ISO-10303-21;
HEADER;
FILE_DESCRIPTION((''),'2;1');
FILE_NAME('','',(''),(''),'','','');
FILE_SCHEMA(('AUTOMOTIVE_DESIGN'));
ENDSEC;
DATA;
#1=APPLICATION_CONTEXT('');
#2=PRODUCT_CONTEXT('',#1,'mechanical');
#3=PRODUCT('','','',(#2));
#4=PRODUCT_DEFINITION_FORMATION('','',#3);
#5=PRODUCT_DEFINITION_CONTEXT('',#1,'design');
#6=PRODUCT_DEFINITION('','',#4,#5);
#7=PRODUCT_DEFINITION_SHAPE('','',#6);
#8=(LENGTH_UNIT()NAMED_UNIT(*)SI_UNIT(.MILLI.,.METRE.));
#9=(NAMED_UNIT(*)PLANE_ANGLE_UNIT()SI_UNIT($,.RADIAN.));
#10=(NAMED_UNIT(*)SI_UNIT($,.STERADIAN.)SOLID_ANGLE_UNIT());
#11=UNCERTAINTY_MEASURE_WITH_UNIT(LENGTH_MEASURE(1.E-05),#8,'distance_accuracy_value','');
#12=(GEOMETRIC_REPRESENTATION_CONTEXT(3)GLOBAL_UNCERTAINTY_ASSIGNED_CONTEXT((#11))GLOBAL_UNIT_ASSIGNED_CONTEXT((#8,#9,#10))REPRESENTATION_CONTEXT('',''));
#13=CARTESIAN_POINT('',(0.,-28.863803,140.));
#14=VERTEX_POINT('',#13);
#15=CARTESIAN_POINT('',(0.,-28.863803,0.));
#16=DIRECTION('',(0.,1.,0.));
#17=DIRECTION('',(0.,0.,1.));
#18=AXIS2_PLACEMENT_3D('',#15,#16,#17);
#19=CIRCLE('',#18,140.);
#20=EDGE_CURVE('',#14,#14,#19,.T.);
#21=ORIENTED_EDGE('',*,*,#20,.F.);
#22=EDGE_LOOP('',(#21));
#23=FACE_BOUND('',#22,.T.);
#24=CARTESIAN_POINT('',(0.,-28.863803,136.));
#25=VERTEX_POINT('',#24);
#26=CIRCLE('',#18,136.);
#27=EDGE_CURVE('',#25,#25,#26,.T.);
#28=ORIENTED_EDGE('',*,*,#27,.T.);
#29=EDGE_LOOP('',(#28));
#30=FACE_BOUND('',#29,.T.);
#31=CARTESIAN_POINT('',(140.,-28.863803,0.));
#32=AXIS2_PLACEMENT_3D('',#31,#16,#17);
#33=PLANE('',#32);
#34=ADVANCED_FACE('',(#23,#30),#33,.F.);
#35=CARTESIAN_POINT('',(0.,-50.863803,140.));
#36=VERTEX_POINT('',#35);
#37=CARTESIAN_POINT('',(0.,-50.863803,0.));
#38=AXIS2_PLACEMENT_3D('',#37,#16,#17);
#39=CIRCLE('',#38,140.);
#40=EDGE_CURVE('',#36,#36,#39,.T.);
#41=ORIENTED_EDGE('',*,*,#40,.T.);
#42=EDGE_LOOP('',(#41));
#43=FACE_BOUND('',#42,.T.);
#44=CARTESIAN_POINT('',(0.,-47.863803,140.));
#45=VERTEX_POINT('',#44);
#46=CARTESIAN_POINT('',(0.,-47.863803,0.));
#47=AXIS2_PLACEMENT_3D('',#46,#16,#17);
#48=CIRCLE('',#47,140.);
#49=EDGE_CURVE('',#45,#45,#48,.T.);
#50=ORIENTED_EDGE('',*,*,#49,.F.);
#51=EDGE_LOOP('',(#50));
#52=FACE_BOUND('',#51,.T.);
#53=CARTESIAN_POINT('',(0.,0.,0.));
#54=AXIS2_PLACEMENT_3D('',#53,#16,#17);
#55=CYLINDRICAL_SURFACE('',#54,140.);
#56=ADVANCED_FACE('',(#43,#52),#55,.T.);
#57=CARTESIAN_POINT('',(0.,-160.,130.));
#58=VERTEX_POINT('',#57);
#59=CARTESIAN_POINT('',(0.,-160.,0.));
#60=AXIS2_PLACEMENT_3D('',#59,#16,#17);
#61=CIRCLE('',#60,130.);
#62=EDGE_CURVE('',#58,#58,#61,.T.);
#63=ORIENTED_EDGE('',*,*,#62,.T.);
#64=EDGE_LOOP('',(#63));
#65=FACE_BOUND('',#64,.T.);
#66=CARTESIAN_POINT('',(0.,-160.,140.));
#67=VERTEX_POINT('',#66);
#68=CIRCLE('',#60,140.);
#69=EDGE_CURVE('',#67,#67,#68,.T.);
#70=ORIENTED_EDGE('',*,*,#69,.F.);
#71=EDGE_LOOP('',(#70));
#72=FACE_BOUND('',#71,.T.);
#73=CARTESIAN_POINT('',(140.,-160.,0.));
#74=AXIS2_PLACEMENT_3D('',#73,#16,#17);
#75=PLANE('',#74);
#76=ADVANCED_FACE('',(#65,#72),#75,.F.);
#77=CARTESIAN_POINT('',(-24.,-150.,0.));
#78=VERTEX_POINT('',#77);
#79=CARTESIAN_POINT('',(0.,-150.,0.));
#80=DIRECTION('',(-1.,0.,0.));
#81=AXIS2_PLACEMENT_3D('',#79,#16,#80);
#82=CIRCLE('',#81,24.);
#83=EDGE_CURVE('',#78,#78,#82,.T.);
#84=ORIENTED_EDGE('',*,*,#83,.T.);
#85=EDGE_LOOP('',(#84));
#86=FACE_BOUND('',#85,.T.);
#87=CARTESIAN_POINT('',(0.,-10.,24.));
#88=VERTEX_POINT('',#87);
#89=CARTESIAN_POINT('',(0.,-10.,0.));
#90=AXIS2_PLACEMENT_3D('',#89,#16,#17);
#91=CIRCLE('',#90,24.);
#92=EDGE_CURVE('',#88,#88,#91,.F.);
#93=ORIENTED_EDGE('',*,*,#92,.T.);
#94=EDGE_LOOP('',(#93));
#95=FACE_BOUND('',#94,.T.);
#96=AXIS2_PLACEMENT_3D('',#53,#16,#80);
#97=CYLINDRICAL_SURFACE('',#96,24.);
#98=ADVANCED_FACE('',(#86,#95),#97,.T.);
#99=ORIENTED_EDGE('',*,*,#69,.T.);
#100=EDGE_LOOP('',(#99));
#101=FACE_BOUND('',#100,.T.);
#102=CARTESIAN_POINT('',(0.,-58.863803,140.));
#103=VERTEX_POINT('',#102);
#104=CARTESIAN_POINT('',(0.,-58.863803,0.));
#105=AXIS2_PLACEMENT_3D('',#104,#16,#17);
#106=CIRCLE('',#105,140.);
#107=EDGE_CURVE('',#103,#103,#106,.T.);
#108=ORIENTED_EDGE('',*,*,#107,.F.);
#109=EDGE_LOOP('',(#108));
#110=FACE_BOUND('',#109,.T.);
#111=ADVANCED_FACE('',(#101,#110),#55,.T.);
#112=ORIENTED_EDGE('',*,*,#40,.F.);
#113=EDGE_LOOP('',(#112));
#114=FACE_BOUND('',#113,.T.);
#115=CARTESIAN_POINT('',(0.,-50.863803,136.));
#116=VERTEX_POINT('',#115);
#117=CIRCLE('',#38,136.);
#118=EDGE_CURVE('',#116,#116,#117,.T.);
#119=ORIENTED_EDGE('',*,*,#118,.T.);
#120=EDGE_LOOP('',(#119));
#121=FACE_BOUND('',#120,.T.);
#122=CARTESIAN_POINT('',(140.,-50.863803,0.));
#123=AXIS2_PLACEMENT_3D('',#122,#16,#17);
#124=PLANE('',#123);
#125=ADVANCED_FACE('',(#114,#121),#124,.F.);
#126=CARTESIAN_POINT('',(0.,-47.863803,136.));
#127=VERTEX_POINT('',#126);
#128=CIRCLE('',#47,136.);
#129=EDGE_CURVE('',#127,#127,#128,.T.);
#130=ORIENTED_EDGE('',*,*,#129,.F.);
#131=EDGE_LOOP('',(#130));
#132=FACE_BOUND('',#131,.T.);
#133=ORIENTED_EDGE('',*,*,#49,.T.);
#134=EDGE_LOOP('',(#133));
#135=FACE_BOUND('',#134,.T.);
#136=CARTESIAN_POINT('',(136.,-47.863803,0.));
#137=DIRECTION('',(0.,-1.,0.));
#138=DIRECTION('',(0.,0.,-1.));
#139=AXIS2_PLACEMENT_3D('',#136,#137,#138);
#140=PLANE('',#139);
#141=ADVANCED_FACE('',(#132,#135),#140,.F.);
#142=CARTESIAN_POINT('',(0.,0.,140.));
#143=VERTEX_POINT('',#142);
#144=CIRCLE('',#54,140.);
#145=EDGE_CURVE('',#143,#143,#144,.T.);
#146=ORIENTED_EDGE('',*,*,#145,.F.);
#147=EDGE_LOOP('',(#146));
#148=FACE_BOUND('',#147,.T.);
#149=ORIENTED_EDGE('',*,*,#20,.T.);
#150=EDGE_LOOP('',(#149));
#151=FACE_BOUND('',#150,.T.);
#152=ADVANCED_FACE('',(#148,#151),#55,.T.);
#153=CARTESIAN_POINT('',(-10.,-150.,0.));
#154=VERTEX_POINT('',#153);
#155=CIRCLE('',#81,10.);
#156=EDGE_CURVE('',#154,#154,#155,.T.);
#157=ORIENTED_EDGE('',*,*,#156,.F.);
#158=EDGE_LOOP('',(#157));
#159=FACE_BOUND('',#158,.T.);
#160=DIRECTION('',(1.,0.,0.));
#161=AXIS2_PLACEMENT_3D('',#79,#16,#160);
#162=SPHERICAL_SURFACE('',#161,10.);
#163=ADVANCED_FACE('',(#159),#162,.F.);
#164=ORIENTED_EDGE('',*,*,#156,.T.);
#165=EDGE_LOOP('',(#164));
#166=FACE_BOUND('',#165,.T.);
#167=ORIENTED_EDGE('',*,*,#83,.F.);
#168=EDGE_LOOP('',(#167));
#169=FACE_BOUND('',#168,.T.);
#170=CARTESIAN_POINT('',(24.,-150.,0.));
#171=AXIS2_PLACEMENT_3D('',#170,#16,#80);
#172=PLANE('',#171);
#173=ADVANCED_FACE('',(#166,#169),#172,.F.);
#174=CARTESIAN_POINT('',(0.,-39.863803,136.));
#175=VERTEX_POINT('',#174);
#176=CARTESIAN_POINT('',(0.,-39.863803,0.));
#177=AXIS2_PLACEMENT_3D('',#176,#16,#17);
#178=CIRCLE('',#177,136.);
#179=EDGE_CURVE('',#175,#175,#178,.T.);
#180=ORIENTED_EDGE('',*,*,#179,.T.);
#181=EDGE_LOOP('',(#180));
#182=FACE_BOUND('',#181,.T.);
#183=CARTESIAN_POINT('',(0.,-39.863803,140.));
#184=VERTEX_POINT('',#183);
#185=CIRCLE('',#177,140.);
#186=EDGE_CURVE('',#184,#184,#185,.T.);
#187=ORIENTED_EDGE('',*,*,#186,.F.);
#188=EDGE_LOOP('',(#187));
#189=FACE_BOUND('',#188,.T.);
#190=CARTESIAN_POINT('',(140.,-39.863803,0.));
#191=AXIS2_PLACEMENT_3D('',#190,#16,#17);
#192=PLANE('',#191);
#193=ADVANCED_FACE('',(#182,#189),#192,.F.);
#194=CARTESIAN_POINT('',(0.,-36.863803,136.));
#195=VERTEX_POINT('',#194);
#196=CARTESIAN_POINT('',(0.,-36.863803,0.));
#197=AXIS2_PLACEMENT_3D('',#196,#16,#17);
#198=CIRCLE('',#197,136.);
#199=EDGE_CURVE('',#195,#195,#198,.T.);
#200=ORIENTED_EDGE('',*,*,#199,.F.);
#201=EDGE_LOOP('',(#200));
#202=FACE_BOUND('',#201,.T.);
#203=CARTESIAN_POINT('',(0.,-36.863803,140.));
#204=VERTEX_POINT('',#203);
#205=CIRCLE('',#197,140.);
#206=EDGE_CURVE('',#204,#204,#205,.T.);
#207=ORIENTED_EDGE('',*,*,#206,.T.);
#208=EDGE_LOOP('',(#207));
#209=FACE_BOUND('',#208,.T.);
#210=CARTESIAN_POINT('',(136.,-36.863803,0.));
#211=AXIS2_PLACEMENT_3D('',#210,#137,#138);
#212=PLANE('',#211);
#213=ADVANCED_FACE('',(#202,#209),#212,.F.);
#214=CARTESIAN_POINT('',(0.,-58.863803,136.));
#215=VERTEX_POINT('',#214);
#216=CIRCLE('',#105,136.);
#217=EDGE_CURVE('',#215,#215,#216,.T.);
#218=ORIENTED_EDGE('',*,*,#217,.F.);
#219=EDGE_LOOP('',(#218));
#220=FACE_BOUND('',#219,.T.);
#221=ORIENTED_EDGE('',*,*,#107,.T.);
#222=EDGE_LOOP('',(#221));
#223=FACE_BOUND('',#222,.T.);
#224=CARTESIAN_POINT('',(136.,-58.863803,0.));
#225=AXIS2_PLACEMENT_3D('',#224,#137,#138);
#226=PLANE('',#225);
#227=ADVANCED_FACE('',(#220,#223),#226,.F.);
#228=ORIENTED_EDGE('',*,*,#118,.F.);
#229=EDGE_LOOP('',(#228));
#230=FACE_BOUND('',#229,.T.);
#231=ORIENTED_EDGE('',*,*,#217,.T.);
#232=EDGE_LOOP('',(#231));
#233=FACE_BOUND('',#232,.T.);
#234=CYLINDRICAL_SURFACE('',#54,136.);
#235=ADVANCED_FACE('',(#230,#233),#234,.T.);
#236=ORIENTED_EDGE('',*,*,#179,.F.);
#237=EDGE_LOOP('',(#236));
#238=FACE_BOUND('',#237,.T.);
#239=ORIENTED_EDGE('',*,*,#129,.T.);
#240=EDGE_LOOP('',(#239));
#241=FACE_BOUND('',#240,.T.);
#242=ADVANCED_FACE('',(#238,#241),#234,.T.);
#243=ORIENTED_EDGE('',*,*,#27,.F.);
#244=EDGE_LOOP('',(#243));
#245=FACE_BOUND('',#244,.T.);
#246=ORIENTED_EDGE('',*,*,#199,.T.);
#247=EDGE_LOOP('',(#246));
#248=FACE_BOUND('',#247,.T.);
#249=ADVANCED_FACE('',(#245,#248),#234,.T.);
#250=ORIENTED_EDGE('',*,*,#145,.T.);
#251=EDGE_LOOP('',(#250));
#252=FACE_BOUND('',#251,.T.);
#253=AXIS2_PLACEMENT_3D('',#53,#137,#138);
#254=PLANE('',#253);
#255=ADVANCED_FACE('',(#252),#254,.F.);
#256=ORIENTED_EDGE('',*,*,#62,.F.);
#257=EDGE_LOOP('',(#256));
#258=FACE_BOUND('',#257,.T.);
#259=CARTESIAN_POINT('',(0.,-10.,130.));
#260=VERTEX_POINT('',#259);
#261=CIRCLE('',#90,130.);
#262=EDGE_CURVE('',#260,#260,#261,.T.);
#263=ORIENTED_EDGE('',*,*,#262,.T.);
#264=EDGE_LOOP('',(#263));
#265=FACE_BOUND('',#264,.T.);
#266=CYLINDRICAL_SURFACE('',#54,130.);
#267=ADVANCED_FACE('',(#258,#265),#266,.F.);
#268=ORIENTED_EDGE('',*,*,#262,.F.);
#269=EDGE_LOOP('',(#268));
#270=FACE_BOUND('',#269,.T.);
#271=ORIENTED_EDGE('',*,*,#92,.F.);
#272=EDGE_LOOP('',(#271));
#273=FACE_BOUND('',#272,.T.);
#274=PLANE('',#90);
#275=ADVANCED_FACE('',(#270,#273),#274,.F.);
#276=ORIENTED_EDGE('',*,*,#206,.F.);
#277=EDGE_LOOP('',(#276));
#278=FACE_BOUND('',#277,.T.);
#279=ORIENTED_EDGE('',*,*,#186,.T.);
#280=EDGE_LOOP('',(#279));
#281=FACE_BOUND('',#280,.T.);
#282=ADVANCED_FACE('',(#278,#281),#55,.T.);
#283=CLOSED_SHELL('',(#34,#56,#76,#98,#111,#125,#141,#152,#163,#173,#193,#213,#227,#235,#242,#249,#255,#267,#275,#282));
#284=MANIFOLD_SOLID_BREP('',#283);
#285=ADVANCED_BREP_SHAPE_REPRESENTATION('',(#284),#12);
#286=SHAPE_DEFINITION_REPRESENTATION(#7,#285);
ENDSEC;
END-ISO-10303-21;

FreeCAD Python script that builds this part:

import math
import FreeCAD as App
import Part
import Sketcher
from FreeCAD import Vector

doc = App.newDocument("Part")
body = doc.addObject("PartDesign::Body", "Body")

sketch1 = doc.addObject("Sketcher::SketchObject", "Sketch")
body.addObject(sketch1)
sketch1.AttachmentSupport = (doc.XY_Plane, [""])
sketch1.MapMode = "FlatFace"
sketch1.addGeometry([
    Part.LineSegment(Vector(140, 0, 0), Vector(0, 0, 0)),
    Part.LineSegment(Vector(0, 0, 0), Vector(0, -10, 0)),
    Part.LineSegment(Vector(0, -10, 0), Vector(130, -10, 0)),
    Part.LineSegment(Vector(130, -10, 0), Vector(130, -160, 0)),
    Part.LineSegment(Vector(130, -160, 0), Vector(140, -160, 0)),
    Part.LineSegment(Vector(140, -160, 0), Vector(140, -58.863803, 0)),
    Part.LineSegment(Vector(140, -58.863803, 0), Vector(136, -58.863803, 0)),
    Part.LineSegment(Vector(136, -58.863803, 0), Vector(136, -50.863803, 0)),
    Part.LineSegment(Vector(136, -50.863803, 0), Vector(140, -50.863803, 0)),
    Part.LineSegment(Vector(140, -50.863803, 0), Vector(140, -47.863803, 0)),
    Part.LineSegment(Vector(140, -47.863803, 0), Vector(136, -47.863803, 0)),
    Part.LineSegment(Vector(136, -47.863803, 0), Vector(136, -39.863803, 0)),
    Part.LineSegment(Vector(136, -39.863803, 0), Vector(140, -39.863803, 0)),
    Part.LineSegment(Vector(140, -39.863803, 0), Vector(140, -36.863803, 0)),
    Part.LineSegment(Vector(140, -36.863803, 0), Vector(136, -36.863803, 0)),
    Part.LineSegment(Vector(136, -36.863803, 0), Vector(136, -28.863803, 0)),
    Part.LineSegment(Vector(136, -28.863803, 0), Vector(140, -28.863803, 0)),
    Part.LineSegment(Vector(140, -28.863803, 0), Vector(140, 0, 0)),
], False)
sketch1.addConstraint([
    Sketcher.Constraint("Coincident", 0, 2, 1, 1),
    Sketcher.Constraint("Coincident", 1, 2, 2, 1),
    Sketcher.Constraint("Coincident", 2, 2, 3, 1),
    Sketcher.Constraint("Coincident", 3, 2, 4, 1),
    Sketcher.Constraint("Coincident", 4, 2, 5, 1),
    Sketcher.Constraint("Coincident", 5, 2, 6, 1),
    Sketcher.Constraint("Coincident", 6, 2, 7, 1),
    Sketcher.Constraint("Coincident", 7, 2, 8, 1),
    Sketcher.Constraint("Coincident", 8, 2, 9, 1),
    Sketcher.Constraint("Coincident", 9, 2, 10, 1),
    Sketcher.Constraint("Coincident", 10, 2, 11, 1),
    Sketcher.Constraint("Coincident", 11, 2, 12, 1),
    Sketcher.Constraint("Coincident", 12, 2, 13, 1),
    Sketcher.Constraint("Coincident", 13, 2, 14, 1),
    Sketcher.Constraint("Coincident", 14, 2, 15, 1),
    Sketcher.Constraint("Coincident", 15, 2, 16, 1),
    Sketcher.Constraint("Coincident", 16, 2, 17, 1),
    Sketcher.Constraint("Coincident", 17, 2, 0, 1),
    Sketcher.Constraint("Horizontal", 0),
    Sketcher.Constraint("Vertical", 1),
    Sketcher.Constraint("Horizontal", 2),
    Sketcher.Constraint("Vertical", 3),
    Sketcher.Constraint("Horizontal", 4),
    Sketcher.Constraint("Vertical", 5),
    Sketcher.Constraint("Horizontal", 6),
    Sketcher.Constraint("Vertical", 7),
    Sketcher.Constraint("Horizontal", 8),
    Sketcher.Constraint("Vertical", 9),
    Sketcher.Constraint("Horizontal", 10),
    Sketcher.Constraint("Vertical", 11),
    Sketcher.Constraint("Horizontal", 12),
    Sketcher.Constraint("Vertical", 13),
    Sketcher.Constraint("Horizontal", 14),
    Sketcher.Constraint("Vertical", 15),
    Sketcher.Constraint("Horizontal", 16),
    Sketcher.Constraint("Vertical", 17),
    Sketcher.Constraint("Coincident", 0, 2, -1, 1),
    Sketcher.Constraint("Vertical", 5, 2, 8, 2),
    Sketcher.Constraint("Vertical", 7, 2, 10, 2),
    Sketcher.Constraint("Vertical", 9, 2, 12, 2),
    Sketcher.Constraint("Vertical", 11, 2, 14, 2),
    Sketcher.Constraint("Vertical", 13, 2, 16, 2),
    Sketcher.Constraint("Equal", 4, 1),
    Sketcher.Constraint("Equal", 7, 11),
    Sketcher.Constraint("Equal", 9, 13),
    Sketcher.Constraint("Equal", 11, 15),
    Sketcher.Constraint("DistanceX", 0, 2, 0, 1, 140.0),
    Sketcher.Constraint("DistanceX", 2, 1, 2, 2, 130.0),
    Sketcher.Constraint("DistanceX", 6, 2, 6, 1, 4.0),
    Sketcher.Constraint("DistanceY", 3, 2, 3, 1, 150.0),
    Sketcher.Constraint("DistanceY", 7, 1, 7, 2, 8.0),
    Sketcher.Constraint("DistanceY", 9, 1, 9, 2, 3.0),
    Sketcher.Constraint("DistanceY", 5, 1, 5, 2, 101.136197),
])
revolution = doc.addObject("PartDesign::Revolution", "Revolution")
body.addObject(revolution)
revolution.Profile = sketch1
revolution.ReferenceAxis = (sketch1, ["V_Axis"])
revolution.Angle = 360

sketch2 = doc.addObject("Sketcher::SketchObject", "Sketch001")
body.addObject(sketch2)
sketch2.AttachmentSupport = (doc.XY_Plane, [""])
sketch2.MapMode = "FlatFace"
sketch2.addGeometry([
    Part.LineSegment(Vector(0, 0, 0), Vector(0, -140, 0)),
    Part.ArcOfCircle(Part.Circle(Vector(0, -150, 0), Vector(0, 0, 1), 10), math.radians(0), math.radians(90)),
    Part.LineSegment(Vector(10, -150, 0), Vector(24, -150, 0)),
    Part.LineSegment(Vector(24, -150, 0), Vector(24, 0, 0)),
    Part.LineSegment(Vector(24, 0, 0), Vector(0, 0, 0)),
], False)
sketch2.addConstraint([
    Sketcher.Constraint("Coincident", 0, 2, 1, 2),
    Sketcher.Constraint("Coincident", 1, 1, 2, 1),
    Sketcher.Constraint("Coincident", 2, 2, 3, 1),
    Sketcher.Constraint("Coincident", 3, 2, 4, 1),
    Sketcher.Constraint("Coincident", 4, 2, 0, 1),
    Sketcher.Constraint("Vertical", 0),
    Sketcher.Constraint("Horizontal", 2),
    Sketcher.Constraint("Vertical", 3),
    Sketcher.Constraint("Horizontal", 4),
    Sketcher.Constraint("Coincident", 4, 2, -1, 1),
    Sketcher.Constraint("PointOnObject", 1, 3, -2),
    Sketcher.Constraint("Radius", 1, 10.0),
    Sketcher.Constraint("DistanceX", 2, 1, 2, 2, 14.0),
    Sketcher.Constraint("DistanceY", 0, 2, 0, 1, 140.0),
    Sketcher.Constraint("DistanceY", 3, 1, 3, 2, 150.0),
])
revolution2 = doc.addObject("PartDesign::Revolution", "Revolution001")
body.addObject(revolution2)
revolution2.Profile = sketch2
revolution2.ReferenceAxis = (sketch2, ["V_Axis"])
revolution2.Angle = 360

doc.recompute()
